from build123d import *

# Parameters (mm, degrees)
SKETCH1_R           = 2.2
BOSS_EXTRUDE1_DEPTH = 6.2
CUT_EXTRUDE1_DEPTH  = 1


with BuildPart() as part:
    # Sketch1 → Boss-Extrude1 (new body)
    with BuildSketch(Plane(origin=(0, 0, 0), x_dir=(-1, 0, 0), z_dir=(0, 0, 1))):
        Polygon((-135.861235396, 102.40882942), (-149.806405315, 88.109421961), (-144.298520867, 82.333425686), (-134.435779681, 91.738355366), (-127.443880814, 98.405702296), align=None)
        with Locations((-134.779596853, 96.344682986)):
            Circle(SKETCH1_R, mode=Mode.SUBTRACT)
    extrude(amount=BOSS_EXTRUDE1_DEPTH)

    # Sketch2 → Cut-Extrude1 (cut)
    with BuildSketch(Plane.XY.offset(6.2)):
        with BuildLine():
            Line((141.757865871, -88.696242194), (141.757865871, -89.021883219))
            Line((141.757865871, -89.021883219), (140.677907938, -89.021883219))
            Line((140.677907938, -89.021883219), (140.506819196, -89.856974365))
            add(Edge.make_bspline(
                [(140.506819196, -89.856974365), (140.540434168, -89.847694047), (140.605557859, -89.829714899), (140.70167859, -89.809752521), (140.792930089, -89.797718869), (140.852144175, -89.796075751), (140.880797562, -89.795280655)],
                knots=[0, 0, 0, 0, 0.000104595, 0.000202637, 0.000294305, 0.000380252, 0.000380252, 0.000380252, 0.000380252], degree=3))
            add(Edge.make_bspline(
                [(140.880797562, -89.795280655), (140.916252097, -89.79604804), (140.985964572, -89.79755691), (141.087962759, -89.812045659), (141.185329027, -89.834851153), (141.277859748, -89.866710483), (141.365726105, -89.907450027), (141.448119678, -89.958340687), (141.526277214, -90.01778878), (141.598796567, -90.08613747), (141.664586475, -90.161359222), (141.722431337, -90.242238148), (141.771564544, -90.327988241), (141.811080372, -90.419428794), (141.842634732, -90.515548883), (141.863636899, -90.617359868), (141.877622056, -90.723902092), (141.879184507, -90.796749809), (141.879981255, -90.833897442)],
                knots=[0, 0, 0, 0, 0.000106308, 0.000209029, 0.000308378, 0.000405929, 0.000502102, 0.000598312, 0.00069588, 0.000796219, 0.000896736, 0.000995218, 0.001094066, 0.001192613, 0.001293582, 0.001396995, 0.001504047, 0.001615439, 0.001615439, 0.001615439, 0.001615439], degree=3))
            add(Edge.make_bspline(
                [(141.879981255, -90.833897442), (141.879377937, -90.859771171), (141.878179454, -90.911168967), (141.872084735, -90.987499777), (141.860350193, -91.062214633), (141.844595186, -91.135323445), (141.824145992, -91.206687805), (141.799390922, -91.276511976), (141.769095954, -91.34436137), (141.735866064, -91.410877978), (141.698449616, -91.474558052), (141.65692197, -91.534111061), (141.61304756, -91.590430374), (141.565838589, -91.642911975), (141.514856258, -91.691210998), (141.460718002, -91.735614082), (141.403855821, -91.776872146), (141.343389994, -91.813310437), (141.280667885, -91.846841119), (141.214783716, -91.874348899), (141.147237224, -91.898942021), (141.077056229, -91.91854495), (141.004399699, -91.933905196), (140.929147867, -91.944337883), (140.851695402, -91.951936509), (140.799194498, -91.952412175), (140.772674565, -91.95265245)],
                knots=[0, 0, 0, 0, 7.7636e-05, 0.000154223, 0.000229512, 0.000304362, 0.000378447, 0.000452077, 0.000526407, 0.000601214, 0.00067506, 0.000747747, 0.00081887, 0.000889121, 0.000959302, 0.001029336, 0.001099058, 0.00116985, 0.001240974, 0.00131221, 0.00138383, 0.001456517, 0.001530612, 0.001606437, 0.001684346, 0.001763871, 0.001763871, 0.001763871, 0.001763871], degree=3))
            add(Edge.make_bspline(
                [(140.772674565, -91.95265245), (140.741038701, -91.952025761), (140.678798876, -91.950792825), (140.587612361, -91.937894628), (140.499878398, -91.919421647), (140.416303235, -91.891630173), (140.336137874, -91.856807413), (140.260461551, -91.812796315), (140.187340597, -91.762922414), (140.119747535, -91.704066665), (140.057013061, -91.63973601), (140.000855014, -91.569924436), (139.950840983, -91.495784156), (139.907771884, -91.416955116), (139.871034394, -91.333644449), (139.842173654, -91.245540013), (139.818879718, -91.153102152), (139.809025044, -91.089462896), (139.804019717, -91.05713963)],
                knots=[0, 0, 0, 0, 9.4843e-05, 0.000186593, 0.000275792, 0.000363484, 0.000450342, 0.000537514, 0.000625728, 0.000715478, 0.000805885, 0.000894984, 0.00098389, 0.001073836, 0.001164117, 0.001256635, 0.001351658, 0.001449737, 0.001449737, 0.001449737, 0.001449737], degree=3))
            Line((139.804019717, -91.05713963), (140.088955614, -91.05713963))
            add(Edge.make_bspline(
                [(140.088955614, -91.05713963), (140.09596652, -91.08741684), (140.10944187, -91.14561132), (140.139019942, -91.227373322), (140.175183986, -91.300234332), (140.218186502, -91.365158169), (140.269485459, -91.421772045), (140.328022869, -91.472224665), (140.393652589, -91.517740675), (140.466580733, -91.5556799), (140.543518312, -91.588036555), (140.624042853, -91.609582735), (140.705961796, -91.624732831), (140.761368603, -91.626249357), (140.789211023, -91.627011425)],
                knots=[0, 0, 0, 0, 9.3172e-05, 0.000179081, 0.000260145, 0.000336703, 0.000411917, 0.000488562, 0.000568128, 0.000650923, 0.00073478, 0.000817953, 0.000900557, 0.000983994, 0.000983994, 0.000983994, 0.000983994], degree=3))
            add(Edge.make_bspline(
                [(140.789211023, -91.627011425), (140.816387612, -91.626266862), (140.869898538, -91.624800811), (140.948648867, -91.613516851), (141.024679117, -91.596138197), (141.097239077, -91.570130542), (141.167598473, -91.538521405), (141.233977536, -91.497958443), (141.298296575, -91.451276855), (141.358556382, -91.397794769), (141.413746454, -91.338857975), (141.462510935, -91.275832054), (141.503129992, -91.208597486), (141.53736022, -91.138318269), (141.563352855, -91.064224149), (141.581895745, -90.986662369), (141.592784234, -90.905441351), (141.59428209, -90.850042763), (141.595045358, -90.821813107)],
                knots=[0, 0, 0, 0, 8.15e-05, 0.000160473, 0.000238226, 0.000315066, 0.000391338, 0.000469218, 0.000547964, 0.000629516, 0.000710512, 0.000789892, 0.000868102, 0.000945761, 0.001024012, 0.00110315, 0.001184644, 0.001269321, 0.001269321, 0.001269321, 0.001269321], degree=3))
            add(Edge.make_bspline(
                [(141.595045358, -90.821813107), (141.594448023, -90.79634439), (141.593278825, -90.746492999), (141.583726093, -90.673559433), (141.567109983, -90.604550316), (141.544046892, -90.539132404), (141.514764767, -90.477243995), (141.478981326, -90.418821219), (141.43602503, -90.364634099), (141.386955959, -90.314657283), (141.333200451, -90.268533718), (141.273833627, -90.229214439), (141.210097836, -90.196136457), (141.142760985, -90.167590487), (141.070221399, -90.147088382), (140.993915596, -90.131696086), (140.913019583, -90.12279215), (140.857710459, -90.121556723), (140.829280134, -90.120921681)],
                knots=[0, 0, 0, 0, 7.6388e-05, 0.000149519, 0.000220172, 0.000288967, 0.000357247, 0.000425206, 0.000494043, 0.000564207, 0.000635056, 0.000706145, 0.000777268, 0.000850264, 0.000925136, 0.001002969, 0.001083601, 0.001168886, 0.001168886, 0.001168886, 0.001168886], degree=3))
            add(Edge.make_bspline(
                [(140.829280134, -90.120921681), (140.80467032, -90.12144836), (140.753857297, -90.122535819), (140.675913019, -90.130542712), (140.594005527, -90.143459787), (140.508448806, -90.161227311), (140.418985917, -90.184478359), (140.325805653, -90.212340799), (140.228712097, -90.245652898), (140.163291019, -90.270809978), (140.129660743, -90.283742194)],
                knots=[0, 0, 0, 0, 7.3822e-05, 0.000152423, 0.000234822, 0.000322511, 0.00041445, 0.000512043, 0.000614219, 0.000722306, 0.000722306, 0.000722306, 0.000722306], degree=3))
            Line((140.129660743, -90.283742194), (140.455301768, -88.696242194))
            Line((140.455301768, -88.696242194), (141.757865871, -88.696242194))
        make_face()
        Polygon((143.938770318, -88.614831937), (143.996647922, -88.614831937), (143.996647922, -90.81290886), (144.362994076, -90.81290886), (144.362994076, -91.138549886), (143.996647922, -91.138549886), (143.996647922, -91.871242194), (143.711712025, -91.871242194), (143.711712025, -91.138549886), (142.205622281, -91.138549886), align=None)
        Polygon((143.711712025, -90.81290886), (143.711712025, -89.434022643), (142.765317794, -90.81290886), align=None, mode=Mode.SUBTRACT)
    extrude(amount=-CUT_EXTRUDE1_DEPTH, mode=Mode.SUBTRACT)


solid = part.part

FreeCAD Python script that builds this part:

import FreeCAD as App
import Part
import Sketcher

V = App.Vector

doc = App.newDocument("Part")
body = doc.addObject("PartDesign::Body", "Body")

# Sketch on XY plane
sketch1 = doc.addObject("Sketcher::SketchObject", "Sketch")
body.addObject(sketch1)
sketch1.AttachmentSupport = (doc.XY_Plane, [""])
sketch1.MapMode = "FlatFace"
sketch1.addGeometry(Part.LineSegment(V(135.9, -102.4, 0), V(149.8, -88.1, 0)), False)
sketch1.addGeometry(Part.LineSegment(V(149.8, -88.1, 0), V(144.3, -82.3, 0)), False)
sketch1.addGeometry(Part.LineSegment(V(144.3, -82.3, 0), V(134.4, -91.7, 0)), False)
sketch1.addGeometry(Part.LineSegment(V(134.4, -91.7, 0), V(127.4, -98.4, 0)), False)
sketch1.addGeometry(Part.LineSegment(V(127.4, -98.4, 0), V(135.9, -102.4, 0)), False)
sketch1.addGeometry(Part.Circle(V(134.8, -96.3, 0), V(0, 0, 1), 2.2), False)
sketch1.addConstraint(Sketcher.Constraint("Coincident", 0, 2, 1, 1))
sketch1.addConstraint(Sketcher.Constraint("Coincident", 1, 2, 2, 1))
sketch1.addConstraint(Sketcher.Constraint("Coincident", 2, 2, 3, 1))
sketch1.addConstraint(Sketcher.Constraint("Coincident", 3, 2, 4, 1))
sketch1.addConstraint(Sketcher.Constraint("Coincident", 4, 2, 0, 1))
sketch1.addConstraint(Sketcher.Constraint("Perpendicular", 1, 2))
sketch1.addConstraint(Sketcher.Constraint("Parallel", 2, 3))
sketch1.addConstraint(Sketcher.Constraint("Diameter", 5, 4.4))
sketch1.addConstraint(Sketcher.Constraint("DistanceX", 3, 2, 2, 2, 6.991899))
sketch1.addConstraint(Sketcher.Constraint("Distance", 1, 7.981161))
sketch1.addConstraint(Sketcher.Constraint("Distance", 3, 9.661271))
sketch1.addConstraint(Sketcher.Constraint("DistanceY", 0, 2, -1, 1, 88.109422))
sketch1.addConstraint(Sketcher.Constraint("DistanceX", -1, 1, 1, 2, 144.298521))
sketch1.addConstraint(Sketcher.Constraint("DistanceX", -1, 1, 2, 2, 134.43578))
sketch1.addConstraint(Sketcher.Constraint("DistanceY", 4, 2, -1, 1, 102.408829))
sketch1.addConstraint(Sketcher.Constraint("DistanceX", 5, 3, 0, 2, 15.026808))
sketch1.addConstraint(Sketcher.Constraint("DistanceY", 5, 3, 0, 2, 8.235261))
sketch1.addConstraint(Sketcher.Constraint("DistanceX", 5, 3, 4, 2, 1.081639))
pad1 = doc.addObject("PartDesign::Pad", "Pad")
body.addObject(pad1)
pad1.Profile = sketch1
pad1.Length = 6.2

# Sketch on XY plane
sketch2 = doc.addObject("Sketcher::SketchObject", "Sketch001")
body.addObject(sketch2)
sketch2.AttachmentSupport = (doc.XY_Plane, [""])
sketch2.MapMode = "FlatFace"
sketch2.AttachmentOffset = App.Placement(V(0, 0, 6.2), App.Rotation())
sketch2.addGeometry(Part.LineSegment(V(141.757866, -89.021883, 0), V(141.757866, -88.696242, 0)), False)
sketch2.addGeometry(Part.LineSegment(V(141.757866, -88.696242, 0), V(140.455302, -88.696242, 0)), False)
sketch2.addGeometry(Part.LineSegment(V(140.455302, -88.696242, 0), V(140.129661, -90.283742, 0)), False)
sketch2.addGeometry(Part.BSplineCurve([V(140.82928, -90.120922, 0), V(140.80467, -90.121448, 0), V(140.753857, -90.122536, 0), V(140.675913, -90.130543, 0), V(140.594006, -90.14346, 0), V(140.508449, -90.161227, 0), V(140.418986, -90.184478, 0), V(140.325806, -90.212341, 0), V(140.228712, -90.245653, 0), V(140.163291, -90.27081, 0), V(140.129661, -90.283742, 0)], [4, 1, 1, 1, 1, 1, 1, 1, 4], [0, 0.000073822, 0.000152423, 0.000234822, 0.000322511, 0.00041445, 0.000512043, 0.000614219, 0.000722306], False, 3, [1, 1, 1, 1, 1, 1, 1, 1, 1, 1, 1], False), False)
sketch2.addGeometry(Part.BSplineCurve([V(141.595045, -90.821813, 0), V(141.594448, -90.796344, 0), V(141.593279, -90.746493, 0), V(141.583726, -90.673559, 0), V(141.56711, -90.60455, 0), V(141.544047, -90.539132, 0), V(141.514765, -90.477244, 0), V(141.478981, -90.418821, 0), V(141.436025, -90.364634, 0), V(141.386956, -90.314657, 0), V(141.3332, -90.268534, 0), V(141.273834, -90.229214, 0), V(141.210098, -90.196136, 0), V(141.142761, -90.16759, 0), V(141.070221, -90.147088, 0), V(140.993916, -90.131696, 0), V(140.91302, -90.122792, 0), V(140.85771, -90.121557, 0), V(140.82928, -90.120922, 0)], [4, 1, 1, 1, 1, 1, 1, 1, 1, 1, 1, 1, 1, 1, 1, 1, 4], [0, 0.000076388, 0.000149519, 0.000220172, 0.000288967, 0.000357247, 0.000425206, 0.000494043, 0.000564207, 0.000635056, 0.000706145, 0.000777268, 0.000850264, 0.000925136, 0.001002969, 0.001083601, 0.001168886], False, 3, [1, 1, 1, 1, 1, 1, 1, 1, 1, 1, 1, 1, 1, 1, 1, 1, 1, 1, 1], False), False)
sketch2.addGeometry(Part.BSplineCurve([V(140.789211, -91.627011, 0), V(140.816388, -91.626267, 0), V(140.869899, -91.624801, 0), V(140.948649, -91.613517, 0), V(141.024679, -91.596138, 0), V(141.097239, -91.570131, 0), V(141.167598, -91.538521, 0), V(141.233978, -91.497958, 0), V(141.298297, -91.451277, 0), V(141.358556, -91.397795, 0), V(141.413746, -91.338858, 0), V(141.462511, -91.275832, 0), V(141.50313, -91.208597, 0), V(141.53736, -91.138318, 0), V(141.563353, -91.064224, 0), V(141.581896, -90.986662, 0), V(141.592784, -90.905441, 0), V(141.594282, -90.850043, 0), V(141.595045, -90.821813, 0)], [4, 1, 1, 1, 1, 1, 1, 1, 1, 1, 1, 1, 1, 1, 1, 1, 4], [0, 0.0000815, 0.000160473, 0.000238226, 0.000315066, 0.000391338, 0.000469218, 0.000547964, 0.000629516, 0.000710512, 0.000789892, 0.000868102, 0.000945761, 0.001024012, 0.00110315, 0.001184644, 0.001269321], False, 3, [1, 1, 1, 1, 1, 1, 1, 1, 1, 1, 1, 1, 1, 1, 1, 1, 1, 1, 1], False), False)
sketch2.addGeometry(Part.BSplineCurve([V(140.088956, -91.05714, 0), V(140.095967, -91.087417, 0), V(140.109442, -91.145611, 0), V(140.13902, -91.227373, 0), V(140.175184, -91.300234, 0), V(140.218187, -91.365158, 0), V(140.269485, -91.421772, 0), V(140.328023, -91.472225, 0), V(140.393653, -91.517741, 0), V(140.466581, -91.55568, 0), V(140.543518, -91.588037, 0), V(140.624043, -91.609583, 0), V(140.705962, -91.624733, 0), V(140.761369, -91.626249, 0), V(140.789211, -91.627011, 0)], [4, 1, 1, 1, 1, 1, 1, 1, 1, 1, 1, 1, 4], [0, 0.000093172, 0.000179081, 0.000260145, 0.000336703, 0.000411917, 0.000488562, 0.000568128, 0.000650923, 0.00073478, 0.000817953, 0.000900557, 0.000983994], False, 3, [1, 1, 1, 1, 1, 1, 1, 1, 1, 1, 1, 1, 1, 1, 1], False), False)
sketch2.addGeometry(Part.LineSegment(V(140.088956, -91.05714, 0), V(139.80402, -91.05714, 0)), False)
sketch2.addGeometry(Part.BSplineCurve([V(140.772675, -91.952652, 0), V(140.741039, -91.952026, 0), V(140.678799, -91.950793, 0), V(140.587612, -91.937895, 0), V(140.499878, -91.919422, 0), V(140.416303, -91.89163, 0), V(140.336138, -91.856807, 0), V(140.260462, -91.812796, 0), V(140.187341, -91.762922, 0), V(140.119748, -91.704067, 0), V(140.057013, -91.639736, 0), V(140.000855, -91.569924, 0), V(139.950841, -91.495784, 0), V(139.907772, -91.416955, 0), V(139.871034, -91.333644, 0), V(139.842174, -91.24554, 0), V(139.81888, -91.153102, 0), V(139.809025, -91.089463, 0), V(139.80402, -91.05714, 0)], [4, 1, 1, 1, 1, 1, 1, 1, 1, 1, 1, 1, 1, 1, 1, 1, 4], [0, 0.000094843, 0.000186593, 0.000275792, 0.000363484, 0.000450342, 0.000537514, 0.000625728, 0.000715478, 0.000805885, 0.000894984, 0.00098389, 0.001073836, 0.001164117, 0.001256635, 0.001351658, 0.001449737], False, 3, [1, 1, 1, 1, 1, 1, 1, 1, 1, 1, 1, 1, 1, 1, 1, 1, 1, 1, 1], False), False)
sketch2.addGeometry(Part.BSplineCurve([V(141.879981, -90.833897, 0), V(141.879378, -90.859771, 0), V(141.878179, -90.911169, 0), V(141.872085, -90.9875, 0), V(141.86035, -91.062215, 0), V(141.844595, -91.135323, 0), V(141.824146, -91.206688, 0), V(141.799391, -91.276512, 0), V(141.769096, -91.344361, 0), V(141.735866, -91.410878, 0), V(141.69845, -91.474558, 0), V(141.656922, -91.534111, 0), V(141.613048, -91.59043, 0), V(141.565839, -91.642912, 0), V(141.514856, -91.691211, 0), V(141.460718, -91.735614, 0), V(141.403856, -91.776872, 0), V(141.34339, -91.81331, 0), V(141.280668, -91.846841, 0), V(141.214784, -91.874349, 0), V(141.147237, -91.898942, 0), V(141.077056, -91.918545, 0), V(141.0044, -91.933905, 0), V(140.929148, -91.944338, 0), V(140.851695, -91.951937, 0), V(140.799194, -91.952412, 0), V(140.772675, -91.952652, 0)], [4, 1, 1, 1, 1, 1, 1, 1, 1, 1, 1, 1, 1, 1, 1, 1, 1, 1, 1, 1, 1, 1, 1, 1, 4], [0, 0.000077636, 0.000154223, 0.000229512, 0.000304362, 0.000378447, 0.000452077, 0.000526407, 0.000601214, 0.00067506, 0.000747747, 0.00081887, 0.000889121, 0.000959302, 0.001029336, 0.001099058, 0.00116985, 0.001240974, 0.00131221, 0.00138383, 0.001456517, 0.001530612, 0.001606437, 0.001684346, 0.001763871], False, 3, [1, 1, 1, 1, 1, 1, 1, 1, 1, 1, 1, 1, 1, 1, 1, 1, 1, 1, 1, 1, 1, 1, 1, 1, 1, 1, 1], False), False)
sketch2.addGeometry(Part.BSplineCurve([V(140.880798, -89.795281, 0), V(140.916252, -89.796048, 0), V(140.985965, -89.797557, 0), V(141.087963, -89.812046, 0), V(141.185329, -89.834851, 0), V(141.27786, -89.86671, 0), V(141.365726, -89.90745, 0), V(141.44812, -89.958341, 0), V(141.526277, -90.017789, 0), V(141.598797, -90.086137, 0), V(141.664586, -90.161359, 0), V(141.722431, -90.242238, 0), V(141.771565, -90.327988, 0), V(141.81108, -90.419429, 0), V(141.842635, -90.515549, 0), V(141.863637, -90.61736, 0), V(141.877622, -90.723902, 0), V(141.879185, -90.79675, 0), V(141.879981, -90.833897, 0)], [4, 1, 1, 1, 1, 1, 1, 1, 1, 1, 1, 1, 1, 1, 1, 1, 4], [0, 0.000106308, 0.000209029, 0.000308378, 0.000405929, 0.000502102, 0.000598312, 0.00069588, 0.000796219, 0.000896736, 0.000995218, 0.001094066, 0.001192613, 0.001293582, 0.001396995, 0.001504047, 0.001615439], False, 3, [1, 1, 1, 1, 1, 1, 1, 1, 1, 1, 1, 1, 1, 1, 1, 1, 1, 1, 1], False), False)
sketch2.addGeometry(Part.BSplineCurve([V(140.506819, -89.856974, 0), V(140.540434, -89.847694, 0), V(140.605558, -89.829715, 0), V(140.701679, -89.809753, 0), V(140.79293, -89.797719, 0), V(140.852144, -89.796076, 0), V(140.880798, -89.795281, 0)], [4, 1, 1, 1, 4], [0, 0.000104595, 0.000202637, 0.000294305, 0.000380252], False, 3, [1, 1, 1, 1, 1, 1, 1], False), False)
sketch2.addGeometry(Part.LineSegment(V(140.506819, -89.856974, 0), V(140.677908, -89.021883, 0)), False)
sketch2.addGeometry(Part.LineSegment(V(140.677908, -89.021883, 0), V(141.757866, -89.021883, 0)), False)
sketch2.addGeometry(Part.LineSegment(V(143.996648, -88.614832, 0), V(143.93877, -88.614832, 0)), False)
sketch2.addGeometry(Part.LineSegment(V(143.93877, -88.614832, 0), V(142.205622, -91.13855, 0)), False)
sketch2.addGeometry(Part.LineSegment(V(142.205622, -91.13855, 0), V(143.711712, -91.13855, 0)), False)
sketch2.addGeometry(Part.LineSegment(V(143.711712, -91.13855, 0), V(143.711712, -91.871242, 0)), False)
sketch2.addGeometry(Part.LineSegment(V(143.711712, -91.871242, 0), V(143.996648, -91.871242, 0)), False)
sketch2.addGeometry(Part.LineSegment(V(143.996648, -91.871242, 0), V(143.996648, -91.13855, 0)), False)
sketch2.addGeometry(Part.LineSegment(V(143.996648, -91.13855, 0), V(144.362994, -91.13855, 0)), False)
sketch2.addGeometry(Part.LineSegment(V(144.362994, -91.13855, 0), V(144.362994, -90.812909, 0)), False)
sketch2.addGeometry(Part.LineSegment(V(144.362994, -90.812909, 0), V(143.996648, -90.812909, 0)), False)
sketch2.addGeometry(Part.LineSegment(V(143.996648, -90.812909, 0), V(143.996648, -88.614832, 0)), False)
sketch2.addGeometry(Part.LineSegment(V(143.711712, -90.812909, 0), V(142.765318, -90.812909, 0)), False)
sketch2.addGeometry(Part.LineSegment(V(142.765318, -90.812909, 0), V(143.711712, -89.434023, 0)), False)
sketch2.addGeometry(Part.LineSegment(V(143.711712, -89.434023, 0), V(143.711712, -90.812909, 0)), False)
sketch2.addConstraint(Sketcher.Constraint("Block", 3))
sketch2.addConstraint(Sketcher.Constraint("Block", 4))
sketch2.addConstraint(Sketcher.Constraint("Block", 5))
sketch2.addConstraint(Sketcher.Constraint("Block", 6))
sketch2.addConstraint(Sketcher.Constraint("Block", 8))
sketch2.addConstraint(Sketcher.Constraint("Block", 9))
sketch2.addConstraint(Sketcher.Constraint("Block", 10))
sketch2.addConstraint(Sketcher.Constraint("Block", 11))
sketch2.addConstraint(Sketcher.Constraint("Coincident", 0, 2, 1, 1))
sketch2.addConstraint(Sketcher.Constraint("Coincident", 1, 2, 2, 1))
sketch2.addConstraint(Sketcher.Constraint("Coincident", 2, 2, 3, 2))
sketch2.addConstraint(Sketcher.Constraint("Coincident", 6, 1, 7, 1))
sketch2.addConstraint(Sketcher.Constraint("Coincident", 7, 2, 8, 2))
sketch2.addConstraint(Sketcher.Constraint("Coincident", 11, 1, 12, 1))
sketch2.addConstraint(Sketcher.Constraint("Coincident", 12, 2, 13, 1))
sketch2.addConstraint(Sketcher.Constraint("Coincident", 13, 2, 0, 1))
sketch2.addConstraint(Sketcher.Constraint("Coincident", 14, 2, 15, 1))
sketch2.addConstraint(Sketcher.Constraint("Coincident", 15, 2, 16, 1))
sketch2.addConstraint(Sketcher.Constraint("Coincident", 16, 2, 17, 1))
sketch2.addConstraint(Sketcher.Constraint("Coincident", 17, 2, 18, 1))
sketch2.addConstraint(Sketcher.Constraint("Coincident", 18, 2, 19, 1))
sketch2.addConstraint(Sketcher.Constraint("Coincident", 19, 2, 20, 1))
sketch2.addConstraint(Sketcher.Constraint("Coincident", 20, 2, 21, 1))
sketch2.addConstraint(Sketcher.Constraint("Coincident", 21, 2, 22, 1))
sketch2.addConstraint(Sketcher.Constraint("Coincident", 22, 2, 23, 1))
sketch2.addConstraint(Sketcher.Constraint("Coincident", 23, 2, 14, 1))
sketch2.addConstraint(Sketcher.Constraint("Coincident", 24, 2, 25, 1))
sketch2.addConstraint(Sketcher.Constraint("Coincident", 25, 2, 26, 1))
sketch2.addConstraint(Sketcher.Constraint("Coincident", 26, 2, 24, 1))
sketch2.addConstraint(Sketcher.Constraint("Vertical", 0))
sketch2.addConstraint(Sketcher.Constraint("Horizontal", 1))
sketch2.addConstraint(Sketcher.Constraint("Horizontal", 13))
sketch2.addConstraint(Sketcher.Constraint("Horizontal", 14))
sketch2.addConstraint(Sketcher.Constraint("Horizontal", 16))
sketch2.addConstraint(Sketcher.Constraint("Vertical", 17))
sketch2.addConstraint(Sketcher.Constraint("Horizontal", 18))
sketch2.addConstraint(Sketcher.Constraint("Vertical", 19))
sketch2.addConstraint(Sketcher.Constraint("Horizontal", 20))
sketch2.addConstraint(Sketcher.Constraint("Vertical", 21))
sketch2.addConstraint(Sketcher.Constraint("Horizontal", 22))
sketch2.addConstraint(Sketcher.Constraint("Vertical", 23))
sketch2.addConstraint(Sketcher.Constraint("Horizontal", 24))
sketch2.addConstraint(Sketcher.Constraint("Vertical", 26))
sketch2.addConstraint(Sketcher.Constraint("DistanceY", 17, 2, 0, 2, 3.175))
sketch2.addConstraint(Sketcher.Constraint("DistanceX", 16, 1, 16, 2, 1.50609))
sketch2.addConstraint(Sketcher.Constraint("DistanceY", 0, 1, 0, 2, 0.325641))
sketch2.addConstraint(Sketcher.Constraint("DistanceY", 21, 1, 21, 2, 0.325641))
sketch2.addConstraint(Sketcher.Constraint("DistanceX", -1, 1, 1, 2, 140.455302))
sketch2.addConstraint(Sketcher.Constraint("DistanceY", 2, 2, 1, 2, 1.5875))
sketch2.addConstraint(Sketcher.Constraint("Distance", 15, 3.061528))
sketch2.addConstraint(Sketcher.Constraint("Distance", 25, 1.67242))
sketch2.addConstraint(Sketcher.Constraint("DistanceX", 1, 2, 1, 1, 1.302564))
sketch2.addConstraint(Sketcher.Constraint("DistanceX", 13, 1, 13, 2, 1.079958))
sketch2.addConstraint(Sketcher.Constraint("DistanceX", 14, 2, 14, 1, 0.057878))
sketch2.addConstraint(Sketcher.Constraint("DistanceX", 18, 1, 18, 2, 0.284936))
sketch2.addConstraint(Sketcher.Constraint("DistanceX", 20, 1, 20, 2, 0.366346))
sketch2.addConstraint(Sketcher.Constraint("DistanceX", 22, 2, 22, 1, 0.366346))
sketch2.addConstraint(Sketcher.Constraint("DistanceX", 24, 2, 24, 1, 0.946394))
sketch2.addConstraint(Sketcher.Constraint("DistanceY", 17, 2, 17, 1, 0.732692))
sketch2.addConstraint(Sketcher.Constraint("DistanceY", 19, 1, 19, 2, 0.732692))
sketch2.addConstraint(Sketcher.Constraint("DistanceX", -1, 1, 14, 2, 143.93877))
sketch2.addConstraint(Sketcher.Constraint("DistanceY", 24, 2, -1, 1, 90.812909))
sketch2.addConstraint(Sketcher.Constraint("DistanceX", 24, 2, 22, 2, 1.23133))
pocket1 = doc.addObject("PartDesign::Pocket", "Pocket")
body.addObject(pocket1)
pocket1.Profile = sketch2
pocket1.Length = 1

doc.recompute()
